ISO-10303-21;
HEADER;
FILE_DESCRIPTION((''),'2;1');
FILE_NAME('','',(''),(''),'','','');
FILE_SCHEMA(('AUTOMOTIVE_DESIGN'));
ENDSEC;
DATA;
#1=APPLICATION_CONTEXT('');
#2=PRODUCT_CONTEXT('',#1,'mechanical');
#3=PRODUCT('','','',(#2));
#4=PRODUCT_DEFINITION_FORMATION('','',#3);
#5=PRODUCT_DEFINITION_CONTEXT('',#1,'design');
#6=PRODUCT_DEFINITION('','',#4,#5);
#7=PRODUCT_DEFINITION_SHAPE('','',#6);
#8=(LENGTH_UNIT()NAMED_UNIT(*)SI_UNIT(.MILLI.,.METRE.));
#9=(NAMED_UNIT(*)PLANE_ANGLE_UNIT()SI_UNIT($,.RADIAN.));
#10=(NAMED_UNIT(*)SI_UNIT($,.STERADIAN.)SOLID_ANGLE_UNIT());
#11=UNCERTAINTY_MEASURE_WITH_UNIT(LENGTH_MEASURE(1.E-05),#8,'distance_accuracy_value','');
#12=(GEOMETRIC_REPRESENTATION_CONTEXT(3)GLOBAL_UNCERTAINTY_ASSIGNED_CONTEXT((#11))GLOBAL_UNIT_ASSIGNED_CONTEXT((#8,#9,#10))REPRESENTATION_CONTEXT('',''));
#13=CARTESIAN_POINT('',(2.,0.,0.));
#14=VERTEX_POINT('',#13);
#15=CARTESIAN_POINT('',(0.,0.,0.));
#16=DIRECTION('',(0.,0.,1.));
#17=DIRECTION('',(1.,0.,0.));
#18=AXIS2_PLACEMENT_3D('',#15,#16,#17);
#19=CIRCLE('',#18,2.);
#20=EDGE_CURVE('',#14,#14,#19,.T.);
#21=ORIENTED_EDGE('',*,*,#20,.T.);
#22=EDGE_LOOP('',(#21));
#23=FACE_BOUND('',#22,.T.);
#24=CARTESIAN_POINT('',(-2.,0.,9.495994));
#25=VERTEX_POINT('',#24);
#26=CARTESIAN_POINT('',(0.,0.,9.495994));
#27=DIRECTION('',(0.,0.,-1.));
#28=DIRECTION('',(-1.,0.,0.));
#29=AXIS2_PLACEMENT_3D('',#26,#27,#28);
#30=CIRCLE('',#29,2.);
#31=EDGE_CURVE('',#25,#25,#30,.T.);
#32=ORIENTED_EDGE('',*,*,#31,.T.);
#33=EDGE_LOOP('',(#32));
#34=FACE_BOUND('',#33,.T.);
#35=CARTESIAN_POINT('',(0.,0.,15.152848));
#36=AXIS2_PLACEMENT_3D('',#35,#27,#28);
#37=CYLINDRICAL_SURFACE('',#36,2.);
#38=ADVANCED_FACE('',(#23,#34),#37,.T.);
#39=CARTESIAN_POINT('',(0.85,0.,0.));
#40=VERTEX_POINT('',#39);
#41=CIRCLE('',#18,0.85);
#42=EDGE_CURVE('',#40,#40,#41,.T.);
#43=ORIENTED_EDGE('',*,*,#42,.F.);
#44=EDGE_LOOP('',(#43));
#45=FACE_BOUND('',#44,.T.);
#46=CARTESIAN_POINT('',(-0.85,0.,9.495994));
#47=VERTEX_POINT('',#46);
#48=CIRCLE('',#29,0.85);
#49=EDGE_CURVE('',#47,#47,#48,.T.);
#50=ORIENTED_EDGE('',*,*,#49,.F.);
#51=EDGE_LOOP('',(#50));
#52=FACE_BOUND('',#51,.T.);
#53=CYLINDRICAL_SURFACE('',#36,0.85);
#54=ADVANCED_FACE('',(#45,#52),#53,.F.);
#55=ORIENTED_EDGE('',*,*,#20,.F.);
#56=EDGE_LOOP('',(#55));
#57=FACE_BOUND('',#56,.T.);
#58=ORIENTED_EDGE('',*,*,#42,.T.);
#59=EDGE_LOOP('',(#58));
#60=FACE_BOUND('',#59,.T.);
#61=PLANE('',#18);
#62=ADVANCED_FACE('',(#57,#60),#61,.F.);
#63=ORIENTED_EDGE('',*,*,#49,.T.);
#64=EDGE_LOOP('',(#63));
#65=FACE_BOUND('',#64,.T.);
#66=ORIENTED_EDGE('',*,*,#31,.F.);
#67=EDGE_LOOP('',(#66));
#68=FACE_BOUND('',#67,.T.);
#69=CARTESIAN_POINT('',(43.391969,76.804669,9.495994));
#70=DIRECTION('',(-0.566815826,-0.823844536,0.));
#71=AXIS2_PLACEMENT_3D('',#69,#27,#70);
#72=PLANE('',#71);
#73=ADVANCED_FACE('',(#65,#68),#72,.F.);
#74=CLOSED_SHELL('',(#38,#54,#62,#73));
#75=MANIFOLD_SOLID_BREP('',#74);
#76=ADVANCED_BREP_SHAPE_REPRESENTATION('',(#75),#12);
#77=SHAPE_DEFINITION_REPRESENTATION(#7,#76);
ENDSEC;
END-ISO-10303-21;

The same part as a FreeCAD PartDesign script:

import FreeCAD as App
import Part
import Sketcher
Q = App.Units.Quantity

doc = App.newDocument("Part")
body = doc.addObject("PartDesign::Body", "Body")

# Sketch on XY plane
sketch1 = body.newObject("Sketcher::SketchObject", "Sketch")
sketch1.AttachmentSupport = (doc.getObject("XY_Plane"), [""])
sketch1.MapMode = "FlatFace"
sketch1.addGeometry(Part.Circle(App.Vector(0, 0, 0), App.Vector(0, 0, 1), 2), False)
sketch1.addGeometry(Part.Circle(App.Vector(0, 0, 0), App.Vector(0, 0, 1), 0.8), False)
sketch1.addConstraint(Sketcher.Constraint("Coincident", 0, 3, -1, 1))
sketch1.addConstraint(Sketcher.Constraint("Coincident", 1, 3, -1, 1))
sketch1.addConstraint(Sketcher.Constraint("Diameter", 0, Q("4 mm")))
sketch1.addConstraint(Sketcher.Constraint("Diameter", 1, Q("1.7 mm")))
pad1 = body.newObject("PartDesign::Pad", "Pad")
pad1.Profile = sketch1
pad1.Length = 9.495994

doc.recompute()
